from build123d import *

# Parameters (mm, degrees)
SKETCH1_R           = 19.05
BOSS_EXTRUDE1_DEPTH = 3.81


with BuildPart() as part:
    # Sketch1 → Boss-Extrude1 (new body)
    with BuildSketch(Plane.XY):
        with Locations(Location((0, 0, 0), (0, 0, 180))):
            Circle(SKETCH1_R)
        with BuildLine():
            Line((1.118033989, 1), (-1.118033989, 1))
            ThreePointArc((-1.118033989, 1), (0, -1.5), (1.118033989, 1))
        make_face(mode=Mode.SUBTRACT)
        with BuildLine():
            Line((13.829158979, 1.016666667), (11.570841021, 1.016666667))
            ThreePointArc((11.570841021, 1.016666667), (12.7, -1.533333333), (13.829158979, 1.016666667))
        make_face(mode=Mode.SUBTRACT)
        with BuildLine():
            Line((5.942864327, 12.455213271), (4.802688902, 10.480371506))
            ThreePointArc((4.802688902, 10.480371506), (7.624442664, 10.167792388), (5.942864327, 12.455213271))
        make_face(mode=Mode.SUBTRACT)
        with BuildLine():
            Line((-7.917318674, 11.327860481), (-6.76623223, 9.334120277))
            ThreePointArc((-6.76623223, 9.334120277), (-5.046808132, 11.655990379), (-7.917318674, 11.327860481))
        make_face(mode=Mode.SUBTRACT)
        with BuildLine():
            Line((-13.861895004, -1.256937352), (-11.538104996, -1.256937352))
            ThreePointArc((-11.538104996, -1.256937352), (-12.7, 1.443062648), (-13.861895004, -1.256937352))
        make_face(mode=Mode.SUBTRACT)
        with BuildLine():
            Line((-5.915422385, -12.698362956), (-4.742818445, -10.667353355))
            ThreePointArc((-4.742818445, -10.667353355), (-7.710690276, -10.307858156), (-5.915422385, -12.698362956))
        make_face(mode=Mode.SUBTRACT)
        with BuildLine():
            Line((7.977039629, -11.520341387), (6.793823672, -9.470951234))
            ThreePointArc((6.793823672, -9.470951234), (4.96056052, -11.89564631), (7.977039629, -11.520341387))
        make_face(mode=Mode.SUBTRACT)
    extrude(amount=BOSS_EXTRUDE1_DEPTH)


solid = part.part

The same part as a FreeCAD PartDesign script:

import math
import FreeCAD as App
import Part
import Sketcher

V = App.Vector
Q = App.Units.Quantity

doc = App.newDocument("Part")
body = doc.addObject("PartDesign::Body", "Body")

# Sketch on XY plane
sketch1 = body.newObject("Sketcher::SketchObject", "Sketch")
sketch1.AttachmentSupport = (doc.getObject("XY_Plane"), [""])
sketch1.MapMode = "FlatFace"
sketch1.addGeometry([
    Part.Circle(V(0, 0, 0), V(0, 0, 1), 19.1),  # 0
    Part.LineSegment(V(4.8, 10.5, 0), V(5.9, 12.5, 0)),  # 1
    Part.ArcOfCircle(Part.Circle(V(6.3, 10.9, 0), V(0, 0, 1), 1.6), math.radians(-163), math.radians(103)),  # 2
    Part.LineSegment(V(-6.8, 9.3, 0), V(-7.9, 11.3, 0)),  # 3
    Part.ArcOfCircle(Part.Circle(V(-6.4, 10.9, 0), V(0, 0, 1), 1.6), math.radians(-103), math.radians(163)),  # 4
    Part.LineSegment(V(-11.5, -1.3, 0), V(-13.9, -1.3, 0)),  # 5
    Part.ArcOfCircle(Part.Circle(V(-12.7, -0.2, 0), V(0, 0, 1), 1.6), math.radians(-43), math.radians(223)),  # 6
    Part.LineSegment(V(11.6, 1, 0), V(13.8, 1, 0)),  # 7
    Part.ArcOfCircle(Part.Circle(V(12.7, 0, 0), V(0, 0, 1), 1.5), math.radians(138), math.radians(402)),  # 8
    Part.LineSegment(V(-1.1, 1, 0), V(1.1, 1, 0)),  # 9
    Part.ArcOfCircle(Part.Circle(V(0, 0, 0), V(0, 0, 1), 1.5), math.radians(138), math.radians(402)),  # 10
    Part.LineSegment(V(6.8, -9.5, 0), V(8, -11.5, 0)),  # 11
    Part.ArcOfCircle(Part.Circle(V(6.4, -11.1, 0), V(0, 0, 1), 1.6), math.radians(76), math.radians(344)),  # 12
    Part.LineSegment(V(-4.7, -10.7, 0), V(-5.9, -12.7, 0)),  # 13
    Part.ArcOfCircle(Part.Circle(V(-6.3, -11.1, 0), V(0, 0, 1), 1.6), math.radians(16), math.radians(284)),  # 14
], False)
sketch1.addConstraint([
    Sketcher.Constraint("Coincident", 1, 1, 2, 1),
    Sketcher.Constraint("Coincident", 2, 2, 1, 2),
    Sketcher.Constraint("Coincident", 3, 1, 4, 1),
    Sketcher.Constraint("Coincident", 4, 2, 3, 2),
    Sketcher.Constraint("Coincident", 5, 1, 6, 1),
    Sketcher.Constraint("Coincident", 6, 2, 5, 2),
    Sketcher.Constraint("Coincident", 7, 1, 8, 1),
    Sketcher.Constraint("Coincident", 8, 2, 7, 2),
    Sketcher.Constraint("Coincident", 9, 1, 10, 1),
    Sketcher.Constraint("Coincident", 10, 2, 9, 2),
    Sketcher.Constraint("Coincident", 11, 1, 12, 1),
    Sketcher.Constraint("Coincident", 12, 2, 11, 2),
    Sketcher.Constraint("Coincident", 13, 1, 14, 1),
    Sketcher.Constraint("Coincident", 14, 2, 13, 2),
    Sketcher.Constraint("Horizontal", 5),
    Sketcher.Constraint("Horizontal", 7),
    Sketcher.Constraint("Horizontal", 9),
    Sketcher.Constraint("Coincident", 0, 3, -1, 1),
    Sketcher.Constraint("Coincident", 10, 3, -1, 1),
    Sketcher.Constraint("Parallel", 3, 11),
    Sketcher.Constraint("Parallel", 1, 13),
    Sketcher.Constraint("Diameter", 0, 38.1),
    Sketcher.Constraint("Radius", 6, 1.6),
    Sketcher.Constraint("Radius", 10, 1.5),
    Sketcher.Constraint("Angle", 1, Q("60 deg")),
    Sketcher.Constraint("Angle", 3, Q("120 deg")),
    Sketcher.Constraint("Radius", 2, 1.55),
    Sketcher.Constraint("Radius", 12, 1.65),
    Sketcher.Constraint("DistanceY", -1, 1, 9, 1, 1.0),
    Sketcher.Constraint("Radius", 4, 1.575),
    Sketcher.Constraint("Radius", 8, 1.525),
    Sketcher.Constraint("Radius", 14, 1.625),
    Sketcher.Constraint("DistanceX", 6, 3, -1, 1, 12.7),
    Sketcher.Constraint("DistanceX", -1, 1, 8, 3, 12.7),
    Sketcher.Constraint("DistanceY", 5, 1, 6, 3, 1.1),
    Sketcher.Constraint("DistanceY", 8, 3, 7, 1, 1.025),
    Sketcher.Constraint("DistanceX", 4, 3, -1, 1, 6.410798),
    Sketcher.Constraint("DistanceX", 14, 3, -1, 1, 6.303399),
    Sketcher.Constraint("DistanceX", 4, 3, 2, 3, 12.692901),
    Sketcher.Constraint("DistanceX", 2, 3, 12, 3, 0.107399),
    Sketcher.Constraint("DistanceX", 3, 1, 9, 1, 5.648198),
    Sketcher.Constraint("DistanceX", 12, 2, 7, 1, 3.593801),
    Sketcher.Constraint("Distance", 1, 2.280351),
    Sketcher.Constraint("DistanceY", -1, 1, 4, 3, 10.86849),
    Sketcher.Constraint("DistanceY", 14, 3, -1, 1, 11.120358),
    Sketcher.Constraint("DistanceY", -1, 1, 1, 1, 10.480372),
    Sketcher.Constraint("DistanceY", 11, 1, -1, 1, 9.470951),
    Sketcher.Constraint("DistanceX", 13, 1, -1, 1, 4.742818),
    Sketcher.Constraint("DistanceY", 6, 3, 2, 3, 11.09973),
    Sketcher.Constraint("DistanceY", 12, 2, 8, 3, 11.512008),
])
pad1 = body.newObject("PartDesign::Pad", "Pad")
pad1.Profile = sketch1
pad1.Length = 3.81

doc.recompute()
